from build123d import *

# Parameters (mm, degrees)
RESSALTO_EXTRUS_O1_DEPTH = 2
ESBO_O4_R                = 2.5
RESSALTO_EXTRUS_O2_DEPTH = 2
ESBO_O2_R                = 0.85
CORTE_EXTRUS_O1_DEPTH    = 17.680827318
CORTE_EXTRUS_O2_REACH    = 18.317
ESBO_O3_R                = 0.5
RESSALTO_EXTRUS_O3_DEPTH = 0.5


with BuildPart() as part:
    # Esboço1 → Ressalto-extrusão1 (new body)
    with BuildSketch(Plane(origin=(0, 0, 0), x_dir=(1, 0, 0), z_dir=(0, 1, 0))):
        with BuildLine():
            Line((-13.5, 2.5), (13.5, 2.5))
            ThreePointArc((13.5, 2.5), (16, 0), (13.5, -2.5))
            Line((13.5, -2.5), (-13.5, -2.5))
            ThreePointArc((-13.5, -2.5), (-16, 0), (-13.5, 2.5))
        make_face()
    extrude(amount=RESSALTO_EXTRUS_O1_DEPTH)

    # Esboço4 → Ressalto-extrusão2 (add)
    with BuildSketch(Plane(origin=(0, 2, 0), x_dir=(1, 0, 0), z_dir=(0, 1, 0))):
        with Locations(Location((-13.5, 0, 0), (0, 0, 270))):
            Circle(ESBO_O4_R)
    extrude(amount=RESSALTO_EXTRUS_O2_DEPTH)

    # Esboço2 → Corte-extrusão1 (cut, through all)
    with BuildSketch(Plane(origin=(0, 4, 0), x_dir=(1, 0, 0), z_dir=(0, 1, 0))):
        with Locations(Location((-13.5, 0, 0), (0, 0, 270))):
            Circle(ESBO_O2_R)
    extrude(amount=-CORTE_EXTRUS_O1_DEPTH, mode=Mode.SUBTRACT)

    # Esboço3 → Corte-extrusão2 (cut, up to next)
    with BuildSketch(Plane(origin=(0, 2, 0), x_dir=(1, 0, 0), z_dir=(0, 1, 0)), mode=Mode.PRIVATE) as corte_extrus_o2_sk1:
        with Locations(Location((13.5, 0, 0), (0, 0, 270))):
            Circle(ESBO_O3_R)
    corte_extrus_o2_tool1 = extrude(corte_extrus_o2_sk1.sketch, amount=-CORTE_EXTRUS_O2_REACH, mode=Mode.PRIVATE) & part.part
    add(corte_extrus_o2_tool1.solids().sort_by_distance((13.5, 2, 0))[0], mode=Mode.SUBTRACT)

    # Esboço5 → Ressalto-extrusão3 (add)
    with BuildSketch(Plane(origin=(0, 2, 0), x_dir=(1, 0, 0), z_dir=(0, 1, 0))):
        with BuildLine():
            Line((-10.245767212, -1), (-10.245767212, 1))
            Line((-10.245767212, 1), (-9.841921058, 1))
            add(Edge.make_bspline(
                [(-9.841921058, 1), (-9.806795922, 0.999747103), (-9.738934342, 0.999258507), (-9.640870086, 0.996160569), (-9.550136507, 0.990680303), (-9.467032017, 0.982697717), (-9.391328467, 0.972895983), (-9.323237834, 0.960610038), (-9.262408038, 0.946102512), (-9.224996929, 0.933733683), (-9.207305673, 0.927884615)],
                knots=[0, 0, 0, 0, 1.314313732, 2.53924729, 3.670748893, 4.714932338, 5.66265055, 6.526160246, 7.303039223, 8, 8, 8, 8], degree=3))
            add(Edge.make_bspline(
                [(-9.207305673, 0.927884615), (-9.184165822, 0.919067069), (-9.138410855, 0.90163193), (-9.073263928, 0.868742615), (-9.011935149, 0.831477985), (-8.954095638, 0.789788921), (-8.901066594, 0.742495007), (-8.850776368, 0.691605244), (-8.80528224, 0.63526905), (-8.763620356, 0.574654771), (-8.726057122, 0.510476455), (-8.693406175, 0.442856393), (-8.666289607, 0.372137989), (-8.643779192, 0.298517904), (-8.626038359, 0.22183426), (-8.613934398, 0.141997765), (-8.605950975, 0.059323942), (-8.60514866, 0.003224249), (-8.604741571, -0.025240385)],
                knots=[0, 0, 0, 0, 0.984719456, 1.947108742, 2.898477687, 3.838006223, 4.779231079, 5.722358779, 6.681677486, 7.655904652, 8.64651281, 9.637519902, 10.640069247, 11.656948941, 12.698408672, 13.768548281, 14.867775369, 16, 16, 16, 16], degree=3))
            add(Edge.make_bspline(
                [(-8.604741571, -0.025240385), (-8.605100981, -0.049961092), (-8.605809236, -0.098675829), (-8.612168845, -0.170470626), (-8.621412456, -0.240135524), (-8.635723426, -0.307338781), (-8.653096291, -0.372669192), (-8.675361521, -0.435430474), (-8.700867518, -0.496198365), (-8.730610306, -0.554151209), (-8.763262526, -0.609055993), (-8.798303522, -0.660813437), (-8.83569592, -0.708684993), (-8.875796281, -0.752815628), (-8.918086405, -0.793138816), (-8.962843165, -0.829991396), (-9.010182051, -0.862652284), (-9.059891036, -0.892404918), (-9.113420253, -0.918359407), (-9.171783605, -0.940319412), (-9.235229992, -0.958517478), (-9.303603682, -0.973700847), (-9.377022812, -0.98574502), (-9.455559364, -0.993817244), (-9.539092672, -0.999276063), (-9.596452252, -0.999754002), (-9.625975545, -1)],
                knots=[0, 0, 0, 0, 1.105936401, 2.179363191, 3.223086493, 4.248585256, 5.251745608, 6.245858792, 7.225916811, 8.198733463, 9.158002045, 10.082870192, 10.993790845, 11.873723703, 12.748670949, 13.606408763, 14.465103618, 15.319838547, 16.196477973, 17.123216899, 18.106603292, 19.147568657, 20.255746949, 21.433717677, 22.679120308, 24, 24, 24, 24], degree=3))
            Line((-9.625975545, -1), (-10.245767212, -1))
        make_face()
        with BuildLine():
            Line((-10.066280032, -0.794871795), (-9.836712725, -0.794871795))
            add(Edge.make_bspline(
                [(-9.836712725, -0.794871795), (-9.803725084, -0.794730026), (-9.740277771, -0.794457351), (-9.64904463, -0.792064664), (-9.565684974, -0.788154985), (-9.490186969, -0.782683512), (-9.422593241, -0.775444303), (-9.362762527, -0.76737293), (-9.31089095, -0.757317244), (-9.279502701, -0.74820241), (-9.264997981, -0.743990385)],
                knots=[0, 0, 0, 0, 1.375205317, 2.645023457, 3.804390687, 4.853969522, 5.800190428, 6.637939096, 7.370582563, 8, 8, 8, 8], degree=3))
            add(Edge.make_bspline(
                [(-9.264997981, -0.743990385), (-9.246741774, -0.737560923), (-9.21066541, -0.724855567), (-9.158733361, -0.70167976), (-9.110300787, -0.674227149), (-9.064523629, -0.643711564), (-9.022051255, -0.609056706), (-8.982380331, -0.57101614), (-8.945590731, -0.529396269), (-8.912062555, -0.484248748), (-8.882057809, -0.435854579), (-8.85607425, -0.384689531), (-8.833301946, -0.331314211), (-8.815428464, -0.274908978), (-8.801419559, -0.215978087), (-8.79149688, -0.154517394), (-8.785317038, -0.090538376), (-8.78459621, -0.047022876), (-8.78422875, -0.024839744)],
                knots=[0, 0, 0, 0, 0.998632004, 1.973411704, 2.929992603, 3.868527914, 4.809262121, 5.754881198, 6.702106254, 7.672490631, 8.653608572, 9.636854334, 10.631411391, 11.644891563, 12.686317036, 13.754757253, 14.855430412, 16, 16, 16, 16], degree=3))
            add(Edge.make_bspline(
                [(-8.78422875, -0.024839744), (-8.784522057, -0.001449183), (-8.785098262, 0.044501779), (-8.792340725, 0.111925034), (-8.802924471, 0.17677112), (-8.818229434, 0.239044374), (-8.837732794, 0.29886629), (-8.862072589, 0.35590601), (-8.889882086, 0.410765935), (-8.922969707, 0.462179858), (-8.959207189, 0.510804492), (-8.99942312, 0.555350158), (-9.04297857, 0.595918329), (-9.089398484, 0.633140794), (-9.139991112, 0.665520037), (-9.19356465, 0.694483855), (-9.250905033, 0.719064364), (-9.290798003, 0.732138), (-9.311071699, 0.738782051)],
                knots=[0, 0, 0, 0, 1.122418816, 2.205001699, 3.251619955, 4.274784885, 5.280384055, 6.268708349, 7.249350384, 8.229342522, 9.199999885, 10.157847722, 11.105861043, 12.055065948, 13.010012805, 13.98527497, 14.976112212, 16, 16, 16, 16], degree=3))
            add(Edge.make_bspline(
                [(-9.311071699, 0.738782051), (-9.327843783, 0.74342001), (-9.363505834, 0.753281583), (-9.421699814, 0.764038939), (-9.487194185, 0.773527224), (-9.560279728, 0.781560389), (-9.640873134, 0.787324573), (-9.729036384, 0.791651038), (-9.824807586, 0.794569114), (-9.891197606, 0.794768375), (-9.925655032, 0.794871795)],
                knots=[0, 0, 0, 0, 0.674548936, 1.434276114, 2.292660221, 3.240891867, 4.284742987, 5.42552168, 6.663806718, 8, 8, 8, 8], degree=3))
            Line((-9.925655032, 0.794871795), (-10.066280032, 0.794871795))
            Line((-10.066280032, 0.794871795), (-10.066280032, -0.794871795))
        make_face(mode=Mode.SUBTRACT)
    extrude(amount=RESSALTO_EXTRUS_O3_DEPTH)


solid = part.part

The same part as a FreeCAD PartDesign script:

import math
import FreeCAD as App
import Part
import Sketcher
Q = App.Units.Quantity

doc = App.newDocument("Part")
body = doc.addObject("PartDesign::Body", "Body")

# Sketch on XZ plane
sketch1 = body.newObject("Sketcher::SketchObject", "Sketch")
sketch1.AttachmentSupport = (doc.getObject("XZ_Plane"), [""])
sketch1.MapMode = "FlatFace"
sketch1.addGeometry([
    Part.LineSegment(App.Vector(13.5, -2.5, 0), App.Vector(-13.5, -2.5, 0)),
    Part.ArcOfCircle(Part.Circle(App.Vector(-13.5, 0, 0), App.Vector(0, 0, 1), 2.5), math.radians(90), math.radians(270)),
    Part.LineSegment(App.Vector(-13.5, 2.5, 0), App.Vector(13.5, 2.5, 0)),
    Part.ArcOfCircle(Part.Circle(App.Vector(13.5, 0, 0), App.Vector(0, 0, 1), 2.5), math.radians(-90), math.radians(90)),
], False)
sketch1.addConstraint([
    Sketcher.Constraint("Tangent", 0, 2, 1, 2),
    Sketcher.Constraint("Tangent", 1, 1, 2, 1),
    Sketcher.Constraint("Tangent", 2, 2, 3, 2),
    Sketcher.Constraint("Tangent", 3, 1, 0, 1),
    Sketcher.Constraint("Horizontal", 0),
    Sketcher.Constraint("Horizontal", 2),
    Sketcher.Constraint("Symmetric", 1, 3, 3, 3, -1, 1),
    Sketcher.Constraint("Radius", 1, Q("2.5 mm")),
    Sketcher.Constraint("DistanceX", 0, 2, 0, 1, Q("27 mm")),
])
pad1 = body.newObject("PartDesign::Pad", "Pad")
pad1.Profile = sketch1
pad1.Length = 2
pad1.Reversed = True

# Sketch on XZ plane
sketch2 = body.newObject("Sketcher::SketchObject", "Sketch001")
sketch2.AttachmentSupport = (doc.getObject("XZ_Plane"), [""])
sketch2.MapMode = "FlatFace"
sketch2.AttachmentOffset = App.Placement(App.Vector(0, 0, -2), App.Rotation())
sketch2.addGeometry(Part.Circle(App.Vector(-13.5, 0, 0), App.Vector(0, 0, 1), 2.5), False)
sketch2.addConstraint([
    Sketcher.Constraint("PointOnObject", 0, 3, -1),
    Sketcher.Constraint("Diameter", 0, Q("5 mm")),
    Sketcher.Constraint("DistanceX", 0, 3, -1, 1, Q("13.5 mm")),
])
pad2 = body.newObject("PartDesign::Pad", "Pad001")
pad2.Profile = sketch2
pad2.Length = 2
pad2.Reversed = True

# Sketch on XZ plane
sketch3 = body.newObject("Sketcher::SketchObject", "Sketch002")
sketch3.AttachmentSupport = (doc.getObject("XZ_Plane"), [""])
sketch3.MapMode = "FlatFace"
sketch3.AttachmentOffset = App.Placement(App.Vector(0, 0, -4), App.Rotation())
sketch3.addGeometry(Part.Circle(App.Vector(-13.5, 0, 0), App.Vector(0, 0, 1), 0.8), False)
sketch3.addConstraint([
    Sketcher.Constraint("PointOnObject", 0, 3, -1),
    Sketcher.Constraint("Diameter", 0, Q("1.7 mm")),
    Sketcher.Constraint("DistanceX", 0, 3, -1, 1, Q("13.5 mm")),
])
pocket1 = body.newObject("PartDesign::Pocket", "Pocket")
pocket1.Profile = sketch3
pocket1.Type = "ThroughAll"
pocket1.Reversed = True

# Sketch on XZ plane
sketch4 = body.newObject("Sketcher::SketchObject", "Sketch003")
sketch4.AttachmentSupport = (doc.getObject("XZ_Plane"), [""])
sketch4.MapMode = "FlatFace"
sketch4.AttachmentOffset = App.Placement(App.Vector(0, 0, -2), App.Rotation())
sketch4.addGeometry(Part.Circle(App.Vector(13.5, 0, 0), App.Vector(0, 0, 1), 0.5), False)
sketch4.addConstraint([
    Sketcher.Constraint("PointOnObject", 0, 3, -1),
    Sketcher.Constraint("Diameter", 0, Q("1 mm")),
    Sketcher.Constraint("DistanceX", -1, 1, 0, 3, Q("13.5 mm")),
])
pocket2 = body.newObject("PartDesign::Pocket", "Pocket001")
pocket2.Profile = sketch4
pocket2.Type = "UpToFirst"
pocket2.Reversed = True

# Sketch on XZ plane
sketch5 = body.newObject("Sketcher::SketchObject", "Sketch004")
sketch5.AttachmentSupport = (doc.getObject("XZ_Plane"), [""])
sketch5.MapMode = "FlatFace"
sketch5.AttachmentOffset = App.Placement(App.Vector(0, 0, -2), App.Rotation())
sketch5.addGeometry([
    Part.LineSegment(App.Vector(-10.245767, -1, 0), App.Vector(-10.245767, 1, 0)),  # 0
    Part.LineSegment(App.Vector(-10.245767, 1, 0), App.Vector(-9.625976, 1, 0)),  # 1
    Part.BSplineCurve([App.Vector(-8.604742, 0.02524, 0), App.Vector(-8.605101, 0.049961, 0), App.Vector(-8.605809, 0.098676, 0), App.Vector(-8.612169, 0.170471, 0), App.Vector(-8.621412, 0.240136, 0), App.Vector(-8.635723, 0.307339, 0), App.Vector(-8.653096, 0.372669, 0), App.Vector(-8.675362, 0.43543, 0), App.Vector(-8.700868, 0.496198, 0), App.Vector(-8.73061, 0.554151, 0), App.Vector(-8.763263, 0.609056, 0), App.Vector(-8.798304, 0.660813, 0), App.Vector(-8.835696, 0.708685, 0), App.Vector(-8.875796, 0.752816, 0), App.Vector(-8.918086, 0.793139, 0), App.Vector(-8.962843, 0.829991, 0), App.Vector(-9.010182, 0.862652, 0), App.Vector(-9.059891, 0.892405, 0), App.Vector(-9.11342, 0.918359, 0), App.Vector(-9.171784, 0.940319, 0), App.Vector(-9.23523, 0.958517, 0), App.Vector(-9.303604, 0.973701, 0), App.Vector(-9.377023, 0.985745, 0), App.Vector(-9.455559, 0.993817, 0), App.Vector(-9.539093, 0.999276, 0), App.Vector(-9.596452, 0.999754, 0), App.Vector(-9.625976, 1, 0)], [4, 1, 1, 1, 1, 1, 1, 1, 1, 1, 1, 1, 1, 1, 1, 1, 1, 1, 1, 1, 1, 1, 1, 1, 4], [0, 1.105936401, 2.179363191, 3.223086493, 4.248585256, 5.251745608, 6.245858792, 7.225916811, 8.198733463, 9.158002045, 10.082870192, 10.993790845, 11.873723703, 12.748670949, 13.606408763, 14.465103618, 15.319838547, 16.196477973, 17.123216899, 18.106603292, 19.147568657, 20.255746949, 21.433717677, 22.679120308, 24], False, 3, [1, 1, 1, 1, 1, 1, 1, 1, 1, 1, 1, 1, 1, 1, 1, 1, 1, 1, 1, 1, 1, 1, 1, 1, 1, 1, 1], False),  # 2
    Part.BSplineCurve([App.Vector(-9.207306, -0.927885, 0), App.Vector(-9.184166, -0.919067, 0), App.Vector(-9.138411, -0.901632, 0), App.Vector(-9.073264, -0.868743, 0), App.Vector(-9.011935, -0.831478, 0), App.Vector(-8.954096, -0.789789, 0), App.Vector(-8.901067, -0.742495, 0), App.Vector(-8.850776, -0.691605, 0), App.Vector(-8.805282, -0.635269, 0), App.Vector(-8.76362, -0.574655, 0), App.Vector(-8.726057, -0.510476, 0), App.Vector(-8.693406, -0.442856, 0), App.Vector(-8.66629, -0.372138, 0), App.Vector(-8.643779, -0.298518, 0), App.Vector(-8.626038, -0.221834, 0), App.Vector(-8.613934, -0.141998, 0), App.Vector(-8.605951, -0.059324, 0), App.Vector(-8.605149, -0.003224, 0), App.Vector(-8.604742, 0.02524, 0)], [4, 1, 1, 1, 1, 1, 1, 1, 1, 1, 1, 1, 1, 1, 1, 1, 4], [0, 0.984719456, 1.947108742, 2.898477687, 3.838006223, 4.779231079, 5.722358779, 6.681677486, 7.655904652, 8.64651281, 9.637519902, 10.640069247, 11.656948941, 12.698408672, 13.768548281, 14.867775369, 16], False, 3, [1, 1, 1, 1, 1, 1, 1, 1, 1, 1, 1, 1, 1, 1, 1, 1, 1, 1, 1], False),  # 3
    Part.BSplineCurve([App.Vector(-9.841921, -1, 0), App.Vector(-9.806796, -0.999747, 0), App.Vector(-9.738934, -0.999259, 0), App.Vector(-9.64087, -0.996161, 0), App.Vector(-9.550137, -0.99068, 0), App.Vector(-9.467032, -0.982698, 0), App.Vector(-9.391328, -0.972896, 0), App.Vector(-9.323238, -0.96061, 0), App.Vector(-9.262408, -0.946103, 0), App.Vector(-9.224997, -0.933734, 0), App.Vector(-9.207306, -0.927885, 0)], [4, 1, 1, 1, 1, 1, 1, 1, 4], [0, 1.314313732, 2.53924729, 3.670748893, 4.714932338, 5.66265055, 6.526160246, 7.303039223, 8], False, 3, [1, 1, 1, 1, 1, 1, 1, 1, 1, 1, 1], False),  # 4
    Part.LineSegment(App.Vector(-9.841921, -1, 0), App.Vector(-10.245767, -1, 0)),  # 5
    Part.LineSegment(App.Vector(-10.06628, 0.794872, 0), App.Vector(-10.06628, -0.794872, 0)),  # 6
    Part.LineSegment(App.Vector(-10.06628, -0.794872, 0), App.Vector(-9.925655, -0.794872, 0)),  # 7
    Part.BSplineCurve([App.Vector(-9.311072, -0.738782, 0), App.Vector(-9.327844, -0.74342, 0), App.Vector(-9.363506, -0.753282, 0), App.Vector(-9.4217, -0.764039, 0), App.Vector(-9.487194, -0.773527, 0), App.Vector(-9.56028, -0.78156, 0), App.Vector(-9.640873, -0.787325, 0), App.Vector(-9.729036, -0.791651, 0), App.Vector(-9.824808, -0.794569, 0), App.Vector(-9.891198, -0.794768, 0), App.Vector(-9.925655, -0.794872, 0)], [4, 1, 1, 1, 1, 1, 1, 1, 4], [0, 0.674548936, 1.434276114, 2.292660221, 3.240891867, 4.284742987, 5.42552168, 6.663806718, 8], False, 3, [1, 1, 1, 1, 1, 1, 1, 1, 1, 1, 1], False),  # 8
    Part.BSplineCurve([App.Vector(-8.784229, 0.02484, 0), App.Vector(-8.784522, 0.001449, 0), App.Vector(-8.785098, -0.044502, 0), App.Vector(-8.792341, -0.111925, 0), App.Vector(-8.802924, -0.176771, 0), App.Vector(-8.818229, -0.239044, 0), App.Vector(-8.837733, -0.298866, 0), App.Vector(-8.862073, -0.355906, 0), App.Vector(-8.889882, -0.410766, 0), App.Vector(-8.92297, -0.46218, 0), App.Vector(-8.959207, -0.510804, 0), App.Vector(-8.999423, -0.55535, 0), App.Vector(-9.042979, -0.595918, 0), App.Vector(-9.089398, -0.633141, 0), App.Vector(-9.139991, -0.66552, 0), App.Vector(-9.193565, -0.694484, 0), App.Vector(-9.250905, -0.719064, 0), App.Vector(-9.290798, -0.732138, 0), App.Vector(-9.311072, -0.738782, 0)], [4, 1, 1, 1, 1, 1, 1, 1, 1, 1, 1, 1, 1, 1, 1, 1, 4], [0, 1.122418816, 2.205001699, 3.251619955, 4.274784885, 5.280384055, 6.268708349, 7.249350384, 8.229342522, 9.199999885, 10.157847722, 11.105861043, 12.055065948, 13.010012805, 13.98527497, 14.976112212, 16], False, 3, [1, 1, 1, 1, 1, 1, 1, 1, 1, 1, 1, 1, 1, 1, 1, 1, 1, 1, 1], False),  # 9
    Part.BSplineCurve([App.Vector(-9.264998, 0.74399, 0), App.Vector(-9.246742, 0.737561, 0), App.Vector(-9.210665, 0.724856, 0), App.Vector(-9.158733, 0.70168, 0), App.Vector(-9.110301, 0.674227, 0), App.Vector(-9.064524, 0.643712, 0), App.Vector(-9.022051, 0.609057, 0), App.Vector(-8.98238, 0.571016, 0), App.Vector(-8.945591, 0.529396, 0), App.Vector(-8.912063, 0.484249, 0), App.Vector(-8.882058, 0.435855, 0), App.Vector(-8.856074, 0.38469, 0), App.Vector(-8.833302, 0.331314, 0), App.Vector(-8.815428, 0.274909, 0), App.Vector(-8.80142, 0.215978, 0), App.Vector(-8.791497, 0.154517, 0), App.Vector(-8.785317, 0.090538, 0), App.Vector(-8.784596, 0.047023, 0), App.Vector(-8.784229, 0.02484, 0)], [4, 1, 1, 1, 1, 1, 1, 1, 1, 1, 1, 1, 1, 1, 1, 1, 4], [0, 0.998632004, 1.973411704, 2.929992603, 3.868527914, 4.809262121, 5.754881198, 6.702106254, 7.672490631, 8.653608572, 9.636854334, 10.631411391, 11.644891563, 12.686317036, 13.754757253, 14.855430412, 16], False, 3, [1, 1, 1, 1, 1, 1, 1, 1, 1, 1, 1, 1, 1, 1, 1, 1, 1, 1, 1], False),  # 10
    Part.BSplineCurve([App.Vector(-9.836713, 0.794872, 0), App.Vector(-9.803725, 0.79473, 0), App.Vector(-9.740278, 0.794457, 0), App.Vector(-9.649045, 0.792065, 0), App.Vector(-9.565685, 0.788155, 0), App.Vector(-9.490187, 0.782684, 0), App.Vector(-9.422593, 0.775444, 0), App.Vector(-9.362763, 0.767373, 0), App.Vector(-9.310891, 0.757317, 0), App.Vector(-9.279503, 0.748202, 0), App.Vector(-9.264998, 0.74399, 0)], [4, 1, 1, 1, 1, 1, 1, 1, 4], [0, 1.375205317, 2.645023457, 3.804390687, 4.853969522, 5.800190428, 6.637939096, 7.370582563, 8], False, 3, [1, 1, 1, 1, 1, 1, 1, 1, 1, 1, 1], False),  # 11
    Part.LineSegment(App.Vector(-9.836713, 0.794872, 0), App.Vector(-10.06628, 0.794872, 0)),  # 12
], False)
sketch5.addConstraint([
    Sketcher.Constraint("Block", 2),
    Sketcher.Constraint("Block", 3),
    Sketcher.Constraint("Block", 4),
    Sketcher.Constraint("Block", 8),
    Sketcher.Constraint("Block", 9),
    Sketcher.Constraint("Block", 10),
    Sketcher.Constraint("Block", 11),
    Sketcher.Constraint("Coincident", 0, 2, 1, 1),
    Sketcher.Constraint("Coincident", 1, 2, 2, 2),
    Sketcher.Constraint("Coincident", 4, 1, 5, 1),
    Sketcher.Constraint("Coincident", 5, 2, 0, 1),
    Sketcher.Constraint("Coincident", 6, 2, 7, 1),
    Sketcher.Constraint("Coincident", 7, 2, 8, 2),
    Sketcher.Constraint("Coincident", 11, 1, 12, 1),
    Sketcher.Constraint("Coincident", 12, 2, 6, 1),
    Sketcher.Constraint("Vertical", 0),
    Sketcher.Constraint("Horizontal", 1),
    Sketcher.Constraint("Horizontal", 5),
    Sketcher.Constraint("Vertical", 6),
    Sketcher.Constraint("Horizontal", 7),
    Sketcher.Constraint("Horizontal", 12),
    Sketcher.Constraint("DistanceX", 1, 1, 1, 2, Q("0.619792 mm")),
    Sketcher.Constraint("DistanceX", 7, 1, 7, 2, Q("0.140625 mm")),
])
pad3 = body.newObject("PartDesign::Pad", "Pad002")
pad3.Profile = sketch5
pad3.Length = 0.5
pad3.Reversed = True

doc.recompute()
